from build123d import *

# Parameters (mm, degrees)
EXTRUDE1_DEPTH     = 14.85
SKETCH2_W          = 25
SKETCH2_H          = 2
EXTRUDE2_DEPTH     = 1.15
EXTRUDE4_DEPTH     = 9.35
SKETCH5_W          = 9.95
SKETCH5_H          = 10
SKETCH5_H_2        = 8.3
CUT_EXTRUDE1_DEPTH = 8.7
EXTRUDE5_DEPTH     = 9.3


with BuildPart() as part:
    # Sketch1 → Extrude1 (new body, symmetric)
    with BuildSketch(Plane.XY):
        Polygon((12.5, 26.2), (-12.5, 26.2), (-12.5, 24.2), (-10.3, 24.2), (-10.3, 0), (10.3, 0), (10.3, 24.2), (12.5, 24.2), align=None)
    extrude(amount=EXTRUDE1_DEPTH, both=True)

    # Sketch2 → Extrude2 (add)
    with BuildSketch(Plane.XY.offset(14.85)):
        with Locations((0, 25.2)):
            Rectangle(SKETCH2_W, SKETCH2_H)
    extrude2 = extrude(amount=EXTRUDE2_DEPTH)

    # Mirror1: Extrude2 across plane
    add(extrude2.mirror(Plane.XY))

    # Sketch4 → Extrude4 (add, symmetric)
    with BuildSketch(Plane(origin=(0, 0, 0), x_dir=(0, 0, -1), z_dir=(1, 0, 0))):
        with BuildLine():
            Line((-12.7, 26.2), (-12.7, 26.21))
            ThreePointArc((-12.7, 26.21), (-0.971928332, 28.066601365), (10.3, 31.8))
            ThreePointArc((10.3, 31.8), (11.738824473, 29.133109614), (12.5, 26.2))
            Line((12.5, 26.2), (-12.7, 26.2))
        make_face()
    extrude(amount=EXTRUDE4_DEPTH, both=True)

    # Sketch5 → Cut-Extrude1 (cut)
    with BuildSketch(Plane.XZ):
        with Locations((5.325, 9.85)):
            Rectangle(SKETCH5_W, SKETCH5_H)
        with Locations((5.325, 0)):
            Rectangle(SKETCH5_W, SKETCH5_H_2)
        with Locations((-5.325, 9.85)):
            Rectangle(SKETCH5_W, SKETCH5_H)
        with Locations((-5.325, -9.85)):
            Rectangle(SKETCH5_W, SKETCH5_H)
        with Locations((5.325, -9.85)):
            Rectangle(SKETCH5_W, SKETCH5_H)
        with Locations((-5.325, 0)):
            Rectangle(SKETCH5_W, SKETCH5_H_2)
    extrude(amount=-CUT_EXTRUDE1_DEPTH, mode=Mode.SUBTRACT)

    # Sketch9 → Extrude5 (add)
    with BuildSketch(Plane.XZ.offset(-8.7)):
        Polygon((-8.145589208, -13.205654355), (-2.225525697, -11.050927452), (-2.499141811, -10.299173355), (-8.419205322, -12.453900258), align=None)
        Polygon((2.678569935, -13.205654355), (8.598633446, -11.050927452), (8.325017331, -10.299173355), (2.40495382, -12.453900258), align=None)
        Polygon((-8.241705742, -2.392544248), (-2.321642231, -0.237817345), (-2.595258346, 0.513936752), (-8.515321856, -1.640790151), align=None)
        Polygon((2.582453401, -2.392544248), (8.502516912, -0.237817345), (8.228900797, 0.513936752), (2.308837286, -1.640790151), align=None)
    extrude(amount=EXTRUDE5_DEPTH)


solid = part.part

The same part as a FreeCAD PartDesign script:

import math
import FreeCAD as App
import Part
import Sketcher

V = App.Vector
Q = App.Units.Quantity

doc = App.newDocument("Part")
body = doc.addObject("PartDesign::Body", "Body")

sketch1 = body.newObject("Sketcher::SketchObject", "Sketch")
sketch1.AttachmentSupport = (doc.getObject("XY_Plane"), [""])
sketch1.MapMode = "FlatFace"
sketch1.addGeometry(Part.LineSegment(V(12.5, 26.2, 0), V(-12.5, 26.2, 0)), False)
sketch1.addGeometry(Part.LineSegment(V(-12.5, 26.2, 0), V(-12.5, 24.2, 0)), False)
sketch1.addGeometry(Part.LineSegment(V(-12.5, 24.2, 0), V(-10.3, 24.2, 0)), False)
sketch1.addGeometry(Part.LineSegment(V(-10.3, 24.2, 0), V(-10.3, 0, 0)), False)
sketch1.addGeometry(Part.LineSegment(V(-10.3, 0, 0), V(10.3, 0, 0)), False)
sketch1.addGeometry(Part.LineSegment(V(10.3, 0, 0), V(10.3, 24.2, 0)), False)
sketch1.addGeometry(Part.LineSegment(V(10.3, 24.2, 0), V(12.5, 24.2, 0)), False)
sketch1.addGeometry(Part.LineSegment(V(12.5, 24.2, 0), V(12.5, 26.2, 0)), False)
sketch1.addConstraint(Sketcher.Constraint("Coincident", 0, 2, 1, 1))
sketch1.addConstraint(Sketcher.Constraint("Coincident", 1, 2, 2, 1))
sketch1.addConstraint(Sketcher.Constraint("Coincident", 2, 2, 3, 1))
sketch1.addConstraint(Sketcher.Constraint("Coincident", 3, 2, 4, 1))
sketch1.addConstraint(Sketcher.Constraint("Coincident", 4, 2, 5, 1))
sketch1.addConstraint(Sketcher.Constraint("Coincident", 5, 2, 6, 1))
sketch1.addConstraint(Sketcher.Constraint("Coincident", 6, 2, 7, 1))
sketch1.addConstraint(Sketcher.Constraint("Coincident", 7, 2, 0, 1))
sketch1.addConstraint(Sketcher.Constraint("Horizontal", 0))
sketch1.addConstraint(Sketcher.Constraint("Vertical", 1))
sketch1.addConstraint(Sketcher.Constraint("Horizontal", 2))
sketch1.addConstraint(Sketcher.Constraint("Vertical", 3))
sketch1.addConstraint(Sketcher.Constraint("Horizontal", 4))
sketch1.addConstraint(Sketcher.Constraint("Vertical", 5))
sketch1.addConstraint(Sketcher.Constraint("Horizontal", 6))
sketch1.addConstraint(Sketcher.Constraint("Vertical", 7))
sketch1.addConstraint(Sketcher.Constraint("Symmetric", 3, 2, 4, 2, -1, 1))
sketch1.addConstraint(Sketcher.Constraint("Symmetric", 1, 2, 6, 2, -2))
sketch1.addConstraint(Sketcher.Constraint("DistanceX", 0, 2, 0, 1, 25.0))
sketch1.addConstraint(Sketcher.Constraint("DistanceY", 1, 2, 1, 1, 2.0))
sketch1.addConstraint(Sketcher.Constraint("DistanceX", 2, 1, 2, 2, 2.2))
sketch1.addConstraint(Sketcher.Constraint("DistanceY", 3, 2, 3, 1, 24.2))
pad1 = body.newObject("PartDesign::Pad", "Pad")
pad1.Profile = sketch1
pad1.Length = 29.7
pad1.Midplane = True

sketch2 = body.newObject("Sketcher::SketchObject", "Sketch001")
sketch2.AttachmentSupport = (doc.getObject("XY_Plane"), [""])
sketch2.MapMode = "FlatFace"
sketch2.AttachmentOffset = App.Placement(V(0, 0, 14.85), App.Rotation())
sketch2.addGeometry(Part.LineSegment(V(-12.5, 26.2, 0), V(-12.5, 24.2, 0)), False)
sketch2.addGeometry(Part.LineSegment(V(-12.5, 24.2, 0), V(12.5, 24.2, 0)), False)
sketch2.addGeometry(Part.LineSegment(V(12.5, 24.2, 0), V(12.5, 26.2, 0)), False)
sketch2.addGeometry(Part.LineSegment(V(12.5, 26.2, 0), V(-12.5, 26.2, 0)), False)
sketch2.addConstraint(Sketcher.Constraint("Coincident", 0, 2, 1, 1))
sketch2.addConstraint(Sketcher.Constraint("Coincident", 1, 2, 2, 1))
sketch2.addConstraint(Sketcher.Constraint("Coincident", 2, 2, 3, 1))
sketch2.addConstraint(Sketcher.Constraint("Coincident", 3, 2, 0, 1))
sketch2.addConstraint(Sketcher.Constraint("Vertical", 0))
sketch2.addConstraint(Sketcher.Constraint("Horizontal", 1))
sketch2.addConstraint(Sketcher.Constraint("Vertical", 2))
sketch2.addConstraint(Sketcher.Constraint("Horizontal", 3))
sketch2.addConstraint(Sketcher.Constraint("DistanceX", 1, 1, 1, 2, 25.0))
sketch2.addConstraint(Sketcher.Constraint("DistanceY", 0, 2, 0, 1, 2.0))
sketch2.addConstraint(Sketcher.Constraint("DistanceX", 0, 2, -1, 1, 12.5))
sketch2.addConstraint(Sketcher.Constraint("DistanceY", -1, 1, 0, 2, 24.2))
pad2 = body.newObject("PartDesign::Pad", "Pad001")
pad2.Profile = sketch2
pad2.Length = 1.15
doc.recompute()

mirrored = body.newObject("PartDesign::Mirrored", "Mirrored")
mirrored.Originals = [pad2]
mirrored.MirrorPlane = (doc.getObject("XY_Plane"), [""])
body.Tip = mirrored

sketch3 = body.newObject("Sketcher::SketchObject", "Sketch002")
sketch3.AttachmentSupport = (doc.getObject("YZ_Plane"), [""])
sketch3.MapMode = "FlatFace"
sketch3.addGeometry(Part.LineSegment(V(26.21, 12.7, 0), V(26.2, 12.7, 0)), False)
sketch3.addGeometry(Part.LineSegment(V(26.2, 12.7, 0), V(26.2, -12.5, 0)), False)
sketch3.addGeometry(Part.ArcOfCircle(Part.Circle(V(24.521429, 0, 0), V(0, 0, 1), 12.612201), math.radians(-82.351749), math.radians(-54.752778)), False)
sketch3.addGeometry(Part.ArcOfCircle(Part.Circle(V(99.001589, 18.212215, 0), V(0, 0, 1), 73), math.radians(-175.669486), math.radians(-157.009513)), False)
sketch3.addConstraint(Sketcher.Constraint("Coincident", 0, 2, 1, 1))
sketch3.addConstraint(Sketcher.Constraint("Coincident", 1, 2, 2, 1))
sketch3.addConstraint(Sketcher.Constraint("Coincident", 2, 2, 3, 2))
sketch3.addConstraint(Sketcher.Constraint("Coincident", 3, 1, 0, 1))
sketch3.addConstraint(Sketcher.Constraint("Horizontal", 0))
sketch3.addConstraint(Sketcher.Constraint("Vertical", 1))
sketch3.addConstraint(Sketcher.Constraint("PointOnObject", 2, 3, -1))
sketch3.addConstraint(Sketcher.Constraint("Radius", 3, 73.0))
sketch3.addConstraint(Sketcher.Constraint("DistanceY", 1, 2, 1, 1, 25.2))
sketch3.addConstraint(Sketcher.Constraint("DistanceY", 2, 2, 0, 2, 23.0))
sketch3.addConstraint(Sketcher.Constraint("DistanceX", 0, 2, 0, 1, 0.01))
sketch3.addConstraint(Sketcher.Constraint("DistanceX", -1, 1, 0, 2, 26.2))
sketch3.addConstraint(Sketcher.Constraint("DistanceY", -1, 1, 0, 2, 12.7))
sketch3.addConstraint(Sketcher.Constraint("DistanceX", -1, 1, 2, 2, 31.8))
pad3 = body.newObject("PartDesign::Pad", "Pad002")
pad3.Profile = sketch3
pad3.Length = 18.7
pad3.Midplane = True

sketch4 = body.newObject("Sketcher::SketchObject", "Sketch003")
sketch4.AttachmentSupport = (doc.getObject("XZ_Plane"), [""])
sketch4.MapMode = "FlatFace"
sketch4.addGeometry(Part.LineSegment(V(0.35, 14.85, 0), V(0.35, 4.85, 0)), False)
sketch4.addGeometry(Part.LineSegment(V(0.35, 4.85, 0), V(10.3, 4.85, 0)), False)
sketch4.addGeometry(Part.LineSegment(V(10.3, 4.85, 0), V(10.3, 14.85, 0)), False)
sketch4.addGeometry(Part.LineSegment(V(10.3, 14.85, 0), V(0.35, 14.85, 0)), False)
sketch4.addGeometry(Part.LineSegment(V(0.35, 4.15, 0), V(0.35, -4.15, 0)), False)
sketch4.addGeometry(Part.LineSegment(V(0.35, -4.15, 0), V(10.3, -4.15, 0)), False)
sketch4.addGeometry(Part.LineSegment(V(10.3, -4.15, 0), V(10.3, 4.15, 0)), False)
sketch4.addGeometry(Part.LineSegment(V(10.3, 4.15, 0), V(0.35, 4.15, 0)), False)
sketch4.addGeometry(Part.LineSegment(V(-10.3, 14.85, 0), V(-10.3, 4.85, 0)), False)
sketch4.addGeometry(Part.LineSegment(V(-10.3, 4.85, 0), V(-0.35, 4.85, 0)), False)
sketch4.addGeometry(Part.LineSegment(V(-0.35, 4.85, 0), V(-0.35, 14.85, 0)), False)
sketch4.addGeometry(Part.LineSegment(V(-0.35, 14.85, 0), V(-10.3, 14.85, 0)), False)
sketch4.addGeometry(Part.LineSegment(V(-10.3, -4.85, 0), V(-10.3, -14.85, 0)), False)
sketch4.addGeometry(Part.LineSegment(V(-10.3, -14.85, 0), V(-0.35, -14.85, 0)), False)
sketch4.addGeometry(Part.LineSegment(V(-0.35, -14.85, 0), V(-0.35, -4.85, 0)), False)
sketch4.addGeometry(Part.LineSegment(V(-0.35, -4.85, 0), V(-10.3, -4.85, 0)), False)
sketch4.addGeometry(Part.LineSegment(V(0.35, -4.85, 0), V(0.35, -14.85, 0)), False)
sketch4.addGeometry(Part.LineSegment(V(0.35, -14.85, 0), V(10.3, -14.85, 0)), False)
sketch4.addGeometry(Part.LineSegment(V(10.3, -14.85, 0), V(10.3, -4.85, 0)), False)
sketch4.addGeometry(Part.LineSegment(V(10.3, -4.85, 0), V(0.35, -4.85, 0)), False)
sketch4.addGeometry(Part.LineSegment(V(-10.3, 4.15, 0), V(-10.3, -4.15, 0)), False)
sketch4.addGeometry(Part.LineSegment(V(-10.3, -4.15, 0), V(-0.35, -4.15, 0)), False)
sketch4.addGeometry(Part.LineSegment(V(-0.35, -4.15, 0), V(-0.35, 4.15, 0)), False)
sketch4.addGeometry(Part.LineSegment(V(-0.35, 4.15, 0), V(-10.3, 4.15, 0)), False)
sketch4.addConstraint(Sketcher.Constraint("Coincident", 0, 2, 1, 1))
sketch4.addConstraint(Sketcher.Constraint("Coincident", 1, 2, 2, 1))
sketch4.addConstraint(Sketcher.Constraint("Coincident", 2, 2, 3, 1))
sketch4.addConstraint(Sketcher.Constraint("Coincident", 3, 2, 0, 1))
sketch4.addConstraint(Sketcher.Constraint("Coincident", 4, 2, 5, 1))
sketch4.addConstraint(Sketcher.Constraint("Coincident", 5, 2, 6, 1))
sketch4.addConstraint(Sketcher.Constraint("Coincident", 6, 2, 7, 1))
sketch4.addConstraint(Sketcher.Constraint("Coincident", 7, 2, 4, 1))
sketch4.addConstraint(Sketcher.Constraint("Coincident", 8, 2, 9, 1))
sketch4.addConstraint(Sketcher.Constraint("Coincident", 9, 2, 10, 1))
sketch4.addConstraint(Sketcher.Constraint("Coincident", 10, 2, 11, 1))
sketch4.addConstraint(Sketcher.Constraint("Coincident", 11, 2, 8, 1))
sketch4.addConstraint(Sketcher.Constraint("Coincident", 12, 2, 13, 1))
sketch4.addConstraint(Sketcher.Constraint("Coincident", 13, 2, 14, 1))
sketch4.addConstraint(Sketcher.Constraint("Coincident", 14, 2, 15, 1))
sketch4.addConstraint(Sketcher.Constraint("Coincident", 15, 2, 12, 1))
sketch4.addConstraint(Sketcher.Constraint("Coincident", 16, 2, 17, 1))
sketch4.addConstraint(Sketcher.Constraint("Coincident", 17, 2, 18, 1))
sketch4.addConstraint(Sketcher.Constraint("Coincident", 18, 2, 19, 1))
sketch4.addConstraint(Sketcher.Constraint("Coincident", 19, 2, 16, 1))
sketch4.addConstraint(Sketcher.Constraint("Coincident", 20, 2, 21, 1))
sketch4.addConstraint(Sketcher.Constraint("Coincident", 21, 2, 22, 1))
sketch4.addConstraint(Sketcher.Constraint("Coincident", 22, 2, 23, 1))
sketch4.addConstraint(Sketcher.Constraint("Coincident", 23, 2, 20, 1))
sketch4.addConstraint(Sketcher.Constraint("Vertical", 0))
sketch4.addConstraint(Sketcher.Constraint("Horizontal", 1))
sketch4.addConstraint(Sketcher.Constraint("Vertical", 2))
sketch4.addConstraint(Sketcher.Constraint("Horizontal", 3))
sketch4.addConstraint(Sketcher.Constraint("Vertical", 4))
sketch4.addConstraint(Sketcher.Constraint("Horizontal", 5))
sketch4.addConstraint(Sketcher.Constraint("Vertical", 6))
sketch4.addConstraint(Sketcher.Constraint("Horizontal", 7))
sketch4.addConstraint(Sketcher.Constraint("Vertical", 8))
sketch4.addConstraint(Sketcher.Constraint("Horizontal", 9))
sketch4.addConstraint(Sketcher.Constraint("Vertical", 10))
sketch4.addConstraint(Sketcher.Constraint("Horizontal", 11))
sketch4.addConstraint(Sketcher.Constraint("Vertical", 12))
sketch4.addConstraint(Sketcher.Constraint("Horizontal", 13))
sketch4.addConstraint(Sketcher.Constraint("Vertical", 14))
sketch4.addConstraint(Sketcher.Constraint("Horizontal", 15))
sketch4.addConstraint(Sketcher.Constraint("Vertical", 16))
sketch4.addConstraint(Sketcher.Constraint("Horizontal", 17))
sketch4.addConstraint(Sketcher.Constraint("Vertical", 18))
sketch4.addConstraint(Sketcher.Constraint("Horizontal", 19))
sketch4.addConstraint(Sketcher.Constraint("Vertical", 20))
sketch4.addConstraint(Sketcher.Constraint("Horizontal", 21))
sketch4.addConstraint(Sketcher.Constraint("Vertical", 22))
sketch4.addConstraint(Sketcher.Constraint("Horizontal", 23))
sketch4.addConstraint(Sketcher.Constraint("Symmetric", 2, 2, 12, 2, -1, 1))
sketch4.addConstraint(Sketcher.Constraint("Symmetric", 0, 2, 14, 2, -1, 1))
sketch4.addConstraint(Sketcher.Constraint("Symmetric", 10, 2, 16, 2, -1, 1))
sketch4.addConstraint(Sketcher.Constraint("Symmetric", 8, 2, 18, 2, -1, 1))
sketch4.addConstraint(Sketcher.Constraint("Symmetric", 6, 2, 20, 2, -1, 1))
sketch4.addConstraint(Sketcher.Constraint("Symmetric", 4, 2, 22, 2, -1, 1))
sketch4.addConstraint(Sketcher.Constraint("Symmetric", 1, 2, 8, 2, -2))
sketch4.addConstraint(Sketcher.Constraint("Symmetric", 3, 2, 10, 2, -2))
sketch4.addConstraint(Sketcher.Constraint("Horizontal", 5, 2, 20, 2))
sketch4.addConstraint(Sketcher.Constraint("Vertical", 3, 2, 4, 2))
sketch4.addConstraint(Sketcher.Constraint("Vertical", 2, 2, 5, 2))
sketch4.addConstraint(Sketcher.Constraint("DistanceY", 0, 2, 0, 1, 10.0))
sketch4.addConstraint(Sketcher.Constraint("DistanceY", 4, 2, 4, 1, 8.3))
sketch4.addConstraint(Sketcher.Constraint("DistanceY", 4, 2, 0, 2, 9.0))
sketch4.addConstraint(Sketcher.Constraint("DistanceX", 1, 1, 1, 2, 9.95))
sketch4.addConstraint(Sketcher.Constraint("DistanceX", -1, 1, 1, 2, 10.3))
pocket1 = body.newObject("PartDesign::Pocket", "Pocket")
pocket1.Profile = sketch4
pocket1.Length = 8.7

sketch5 = body.newObject("Sketcher::SketchObject", "Sketch004")
sketch5.AttachmentSupport = (doc.getObject("XZ_Plane"), [""])
sketch5.MapMode = "FlatFace"
sketch5.AttachmentOffset = App.Placement(V(0, 0, -8.7), App.Rotation())
sketch5.addGeometry(Part.LineSegment(V(-8.145589, -13.205654, 0), V(-2.225526, -11.050927, 0)), False)
sketch5.addGeometry(Part.LineSegment(V(-2.225526, -11.050927, 0), V(-2.499142, -10.299173, 0)), False)
sketch5.addGeometry(Part.LineSegment(V(-2.499142, -10.299173, 0), V(-8.419205, -12.4539, 0)), False)
sketch5.addGeometry(Part.LineSegment(V(-8.419205, -12.4539, 0), V(-8.145589, -13.205654, 0)), False)
sketch5.addGeometry(Part.LineSegment(V(2.67857, -13.205654, 0), V(8.598633, -11.050927, 0)), False)
sketch5.addGeometry(Part.LineSegment(V(8.598633, -11.050927, 0), V(8.325017, -10.299173, 0)), False)
sketch5.addGeometry(Part.LineSegment(V(8.325017, -10.299173, 0), V(2.404954, -12.4539, 0)), False)
sketch5.addGeometry(Part.LineSegment(V(2.404954, -12.4539, 0), V(2.67857, -13.205654, 0)), False)
sketch5.addGeometry(Part.LineSegment(V(-8.241706, -2.392544, 0), V(-2.321642, -0.237817, 0)), False)
sketch5.addGeometry(Part.LineSegment(V(-2.321642, -0.237817, 0), V(-2.595258, 0.513937, 0)), False)
sketch5.addGeometry(Part.LineSegment(V(-2.595258, 0.513937, 0), V(-8.515322, -1.64079, 0)), False)
sketch5.addGeometry(Part.LineSegment(V(-8.515322, -1.64079, 0), V(-8.241706, -2.392544, 0)), False)
sketch5.addGeometry(Part.LineSegment(V(2.582453, -2.392544, 0), V(8.502517, -0.237817, 0)), False)
sketch5.addGeometry(Part.LineSegment(V(8.502517, -0.237817, 0), V(8.228901, 0.513937, 0)), False)
sketch5.addGeometry(Part.LineSegment(V(8.228901, 0.513937, 0), V(2.308837, -1.64079, 0)), False)
sketch5.addGeometry(Part.LineSegment(V(2.308837, -1.64079, 0), V(2.582453, -2.392544, 0)), False)
sketch5.addConstraint(Sketcher.Constraint("Coincident", 0, 2, 1, 1))
sketch5.addConstraint(Sketcher.Constraint("Coincident", 1, 2, 2, 1))
sketch5.addConstraint(Sketcher.Constraint("Coincident", 2, 2, 3, 1))
sketch5.addConstraint(Sketcher.Constraint("Coincident", 3, 2, 0, 1))
sketch5.addConstraint(Sketcher.Constraint("Coincident", 4, 2, 5, 1))
sketch5.addConstraint(Sketcher.Constraint("Coincident", 5, 2, 6, 1))
sketch5.addConstraint(Sketcher.Constraint("Coincident", 6, 2, 7, 1))
sketch5.addConstraint(Sketcher.Constraint("Coincident", 7, 2, 4, 1))
sketch5.addConstraint(Sketcher.Constraint("Coincident", 8, 2, 9, 1))
sketch5.addConstraint(Sketcher.Constraint("Coincident", 9, 2, 10, 1))
sketch5.addConstraint(Sketcher.Constraint("Coincident", 10, 2, 11, 1))
sketch5.addConstraint(Sketcher.Constraint("Coincident", 11, 2, 8, 1))
sketch5.addConstraint(Sketcher.Constraint("Coincident", 12, 2, 13, 1))
sketch5.addConstraint(Sketcher.Constraint("Coincident", 13, 2, 14, 1))
sketch5.addConstraint(Sketcher.Constraint("Coincident", 14, 2, 15, 1))
sketch5.addConstraint(Sketcher.Constraint("Coincident", 15, 2, 12, 1))
sketch5.addConstraint(Sketcher.Constraint("Perpendicular", 0, 1))
sketch5.addConstraint(Sketcher.Constraint("Perpendicular", 1, 2))
sketch5.addConstraint(Sketcher.Constraint("Perpendicular", 2, 3))
sketch5.addConstraint(Sketcher.Constraint("Perpendicular", 3, 4))
sketch5.addConstraint(Sketcher.Constraint("Perpendicular", 4, 5))
sketch5.addConstraint(Sketcher.Constraint("Perpendicular", 5, 6))
sketch5.addConstraint(Sketcher.Constraint("Perpendicular", 6, 7))
sketch5.addConstraint(Sketcher.Constraint("Perpendicular", 7, 8))
sketch5.addConstraint(Sketcher.Constraint("Perpendicular", 8, 9))
sketch5.addConstraint(Sketcher.Constraint("Perpendicular", 9, 10))
sketch5.addConstraint(Sketcher.Constraint("Perpendicular", 10, 11))
sketch5.addConstraint(Sketcher.Constraint("Perpendicular", 11, 12))
sketch5.addConstraint(Sketcher.Constraint("Perpendicular", 12, 13))
sketch5.addConstraint(Sketcher.Constraint("Perpendicular", 13, 14))
sketch5.addConstraint(Sketcher.Constraint("Perpendicular", 14, 15))
sketch5.addConstraint(Sketcher.Constraint("Horizontal", 0, 2, 4, 2))
sketch5.addConstraint(Sketcher.Constraint("Horizontal", 1, 2, 5, 2))
sketch5.addConstraint(Sketcher.Constraint("Horizontal", 2, 2, 6, 2))
sketch5.addConstraint(Sketcher.Constraint("Horizontal", 8, 2, 12, 2))
sketch5.addConstraint(Sketcher.Constraint("Horizontal", 9, 2, 13, 2))
sketch5.addConstraint(Sketcher.Constraint("Horizontal", 10, 2, 14, 2))
sketch5.addConstraint(Sketcher.Constraint("Equal", 6, 8))
sketch5.addConstraint(Sketcher.Constraint("Equal", 7, 9))
sketch5.addConstraint(Sketcher.Constraint("Angle", 0, Q("20 deg")))
sketch5.addConstraint(Sketcher.Constraint("Distance", 0, 6.3))
sketch5.addConstraint(Sketcher.Constraint("Distance", 1, 0.8))
sketch5.addConstraint(Sketcher.Constraint("DistanceY", 2, 2, -1, 1, 12.4539))
sketch5.addConstraint(Sketcher.Constraint("DistanceX", -1, 1, 13, 2, 8.228901))
sketch5.addConstraint(Sketcher.Constraint("DistanceX", 1, 2, 8, 2, 0.1775))
sketch5.addConstraint(Sketcher.Constraint("DistanceX", 5, 2, 12, 2, 0.1775))
sketch5.addConstraint(Sketcher.Constraint("DistanceX", 1, 2, -1, 1, 2.499142))
sketch5.addConstraint(Sketcher.Constraint("DistanceY", 10, 2, -1, 1, 1.64079))
pad4 = body.newObject("PartDesign::Pad", "Pad003")
pad4.Profile = sketch5
pad4.Length = 9.3

doc.recompute()
